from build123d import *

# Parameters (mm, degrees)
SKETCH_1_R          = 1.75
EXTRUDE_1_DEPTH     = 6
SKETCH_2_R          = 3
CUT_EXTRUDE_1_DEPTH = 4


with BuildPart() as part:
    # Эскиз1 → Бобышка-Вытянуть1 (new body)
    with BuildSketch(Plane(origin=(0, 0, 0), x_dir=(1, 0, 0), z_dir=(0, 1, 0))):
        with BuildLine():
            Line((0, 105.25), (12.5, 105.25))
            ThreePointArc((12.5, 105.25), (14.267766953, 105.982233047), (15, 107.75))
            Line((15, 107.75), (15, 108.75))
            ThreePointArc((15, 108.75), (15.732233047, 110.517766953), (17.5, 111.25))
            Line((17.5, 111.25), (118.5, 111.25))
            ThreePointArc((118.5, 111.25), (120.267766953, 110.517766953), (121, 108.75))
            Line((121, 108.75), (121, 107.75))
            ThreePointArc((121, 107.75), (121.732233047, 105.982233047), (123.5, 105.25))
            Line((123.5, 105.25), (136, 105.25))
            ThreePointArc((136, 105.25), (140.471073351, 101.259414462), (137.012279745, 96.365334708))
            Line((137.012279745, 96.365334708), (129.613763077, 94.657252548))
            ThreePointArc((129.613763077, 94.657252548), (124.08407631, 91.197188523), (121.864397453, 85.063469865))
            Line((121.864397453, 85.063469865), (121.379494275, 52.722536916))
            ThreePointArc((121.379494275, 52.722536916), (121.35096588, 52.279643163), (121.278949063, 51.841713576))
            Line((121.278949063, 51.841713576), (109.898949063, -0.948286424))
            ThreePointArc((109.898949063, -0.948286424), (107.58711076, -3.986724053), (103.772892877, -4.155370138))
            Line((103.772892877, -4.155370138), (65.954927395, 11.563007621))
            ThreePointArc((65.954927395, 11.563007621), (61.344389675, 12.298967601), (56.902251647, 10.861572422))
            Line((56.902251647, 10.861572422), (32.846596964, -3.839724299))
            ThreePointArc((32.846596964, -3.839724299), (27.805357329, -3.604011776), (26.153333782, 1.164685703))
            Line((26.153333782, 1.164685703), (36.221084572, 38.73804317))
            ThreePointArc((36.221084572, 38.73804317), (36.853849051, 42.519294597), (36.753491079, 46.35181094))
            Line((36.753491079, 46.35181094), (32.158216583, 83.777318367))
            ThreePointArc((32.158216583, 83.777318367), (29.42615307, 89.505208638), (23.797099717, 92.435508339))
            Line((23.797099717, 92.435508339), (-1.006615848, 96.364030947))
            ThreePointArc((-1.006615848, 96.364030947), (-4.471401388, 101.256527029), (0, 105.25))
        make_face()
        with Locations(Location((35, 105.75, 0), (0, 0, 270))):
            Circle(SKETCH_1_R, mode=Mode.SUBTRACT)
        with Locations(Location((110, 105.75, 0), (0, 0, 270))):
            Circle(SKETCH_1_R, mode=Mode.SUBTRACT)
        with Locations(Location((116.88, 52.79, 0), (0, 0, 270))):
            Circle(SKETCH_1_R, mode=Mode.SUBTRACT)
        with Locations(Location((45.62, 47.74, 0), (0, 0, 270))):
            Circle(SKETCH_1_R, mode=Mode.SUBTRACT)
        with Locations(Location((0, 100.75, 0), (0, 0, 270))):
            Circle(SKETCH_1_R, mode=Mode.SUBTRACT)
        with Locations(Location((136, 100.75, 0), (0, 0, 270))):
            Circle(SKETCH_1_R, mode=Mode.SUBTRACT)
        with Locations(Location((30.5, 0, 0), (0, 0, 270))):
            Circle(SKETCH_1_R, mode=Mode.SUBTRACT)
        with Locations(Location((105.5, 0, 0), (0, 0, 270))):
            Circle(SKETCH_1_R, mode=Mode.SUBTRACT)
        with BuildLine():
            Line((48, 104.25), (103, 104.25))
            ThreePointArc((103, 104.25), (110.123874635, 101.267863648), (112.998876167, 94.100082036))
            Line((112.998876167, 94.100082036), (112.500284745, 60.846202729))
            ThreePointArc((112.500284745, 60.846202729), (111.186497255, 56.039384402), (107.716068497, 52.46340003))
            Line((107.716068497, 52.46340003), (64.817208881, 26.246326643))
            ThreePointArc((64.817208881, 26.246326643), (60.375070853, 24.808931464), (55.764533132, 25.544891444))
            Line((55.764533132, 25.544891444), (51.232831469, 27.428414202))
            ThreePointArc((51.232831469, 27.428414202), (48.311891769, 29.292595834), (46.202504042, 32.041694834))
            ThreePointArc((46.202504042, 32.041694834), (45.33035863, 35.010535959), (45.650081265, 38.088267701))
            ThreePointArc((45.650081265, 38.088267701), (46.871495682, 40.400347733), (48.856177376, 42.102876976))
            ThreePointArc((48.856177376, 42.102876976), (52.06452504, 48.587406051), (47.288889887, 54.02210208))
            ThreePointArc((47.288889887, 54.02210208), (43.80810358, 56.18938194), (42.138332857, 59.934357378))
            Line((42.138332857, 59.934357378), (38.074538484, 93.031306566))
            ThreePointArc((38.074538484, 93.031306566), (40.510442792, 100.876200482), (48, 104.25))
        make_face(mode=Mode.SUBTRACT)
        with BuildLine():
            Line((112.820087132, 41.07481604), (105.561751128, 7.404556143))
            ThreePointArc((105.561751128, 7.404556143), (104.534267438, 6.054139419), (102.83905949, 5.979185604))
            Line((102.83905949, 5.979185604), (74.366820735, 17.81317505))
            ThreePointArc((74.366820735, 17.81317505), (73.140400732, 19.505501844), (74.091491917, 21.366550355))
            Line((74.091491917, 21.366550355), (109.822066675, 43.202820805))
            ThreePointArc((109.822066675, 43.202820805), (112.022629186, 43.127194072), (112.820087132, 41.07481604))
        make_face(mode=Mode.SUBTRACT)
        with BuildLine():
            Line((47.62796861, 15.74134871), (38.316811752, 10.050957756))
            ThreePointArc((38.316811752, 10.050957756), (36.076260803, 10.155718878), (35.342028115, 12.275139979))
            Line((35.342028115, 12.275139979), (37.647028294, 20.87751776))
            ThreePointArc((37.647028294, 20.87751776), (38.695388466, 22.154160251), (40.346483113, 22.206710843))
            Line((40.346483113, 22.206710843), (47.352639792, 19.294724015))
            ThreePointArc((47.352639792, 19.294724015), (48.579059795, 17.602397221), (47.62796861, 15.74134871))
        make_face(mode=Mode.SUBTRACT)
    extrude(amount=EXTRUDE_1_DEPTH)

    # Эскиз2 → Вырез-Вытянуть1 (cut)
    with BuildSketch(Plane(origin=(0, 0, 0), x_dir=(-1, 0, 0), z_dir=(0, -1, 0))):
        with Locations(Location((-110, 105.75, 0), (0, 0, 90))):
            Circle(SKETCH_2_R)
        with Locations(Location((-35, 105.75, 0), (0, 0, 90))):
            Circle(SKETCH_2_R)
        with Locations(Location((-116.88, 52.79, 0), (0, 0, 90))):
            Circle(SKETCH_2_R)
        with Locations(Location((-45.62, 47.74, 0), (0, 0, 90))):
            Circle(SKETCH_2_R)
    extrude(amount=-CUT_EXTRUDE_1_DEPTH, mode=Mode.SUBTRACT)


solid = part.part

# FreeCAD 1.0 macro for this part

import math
import FreeCAD as App
import Part
import Sketcher
from FreeCAD import Vector
Q = App.Units.Quantity

doc = App.newDocument("Part")
params = doc.addObject("Spreadsheet::Sheet", "Params")
for row, (alias, value) in enumerate([
    ("sketch1_radius", "10 mm"),
    ("sketch1_radius2", "20 mm"),
    ("sketch1_radius3", "10 mm"),
    ("sketch1_radius4", "10 mm"),
    ("sketch1_radius5", "2 mm"),
    ("pad1_length", "6 mm"),
    ("sketch2_diameter", "6 mm"),
    ("pocket1_length", "4 mm"),
], start=1):
    params.set(f"A{row}", alias)
    params.set(f"B{row}", "=" + value)
    params.setAlias(f"B{row}", alias)

body = doc.addObject("PartDesign::Body", "Body")

sketch1 = body.newObject("Sketcher::SketchObject", "Sketch")
sketch1.AttachmentSupport = (doc.getObject("XZ_Plane"), [""])
sketch1.MapMode = "FlatFace"
sketch1.addGeometry(Part.LineSegment(Vector(12.5, -105.25, 0), Vector(0, -105.25, 0)), False)
sketch1.addGeometry(Part.ArcOfCircle(Part.Circle(Vector(0, -100.75, 0), Vector(0, 0, 1), 4.5), math.radians(102.925999), math.radians(270)), False)
sketch1.addGeometry(Part.LineSegment(Vector(-1.006616, -96.364031, 0), Vector(23.7971, -92.435508, 0)), False)
sketch1.addGeometry(Part.ArcOfCircle(Part.Circle(Vector(22.232755, -82.558625, 0), Vector(0, 0, 1), 10), math.radians(-81), math.radians(-7)), False)
sketch1.addGeometry(Part.LineSegment(Vector(32.158217, -83.777318, 0), Vector(36.753491, -46.351811, 0)), False)
sketch1.addGeometry(Part.ArcOfCircle(Part.Circle(Vector(16.902568, -43.914424, 0), Vector(0, 0, 1), 20), math.radians(-7), math.radians(15)), False)
sketch1.addGeometry(Part.LineSegment(Vector(36.221085, -38.738043, 0), Vector(26.153334, -1.164686, 0)), False)
sketch1.addGeometry(Part.ArcOfCircle(Part.Circle(Vector(30.5, 0, 0), Vector(0, 0, 1), 4.5), math.radians(58.569361), math.radians(195)), False)
sketch1.addGeometry(Part.LineSegment(Vector(32.846597, 3.839724, 0), Vector(56.902252, -10.861572, 0)), False)
sketch1.addGeometry(Part.ArcOfCircle(Part.Circle(Vector(62.116912, -2.328852, 0), Vector(0, 0, 1), 10), math.radians(-121.430639), math.radians(-67.430639)), False)
sketch1.addGeometry(Part.LineSegment(Vector(65.954927, -11.563008, 0), Vector(103.772893, 4.15537, 0)), False)
sketch1.addGeometry(Part.ArcOfCircle(Part.Circle(Vector(105.5, 0, 0), Vector(0, 0, 1), 4.5), math.radians(12.165154), math.radians(112.569361)), False)
sketch1.addGeometry(Part.LineSegment(Vector(109.898949, 0.948286, 0), Vector(121.278949, -51.841714, 0)), False)
sketch1.addGeometry(Part.ArcOfCircle(Part.Circle(Vector(116.88, -52.79, 0), Vector(0, 0, 1), 4.5), math.radians(0.858999), math.radians(12.165154)), False)
sketch1.addGeometry(Part.LineSegment(Vector(121.379494, -52.722537, 0), Vector(121.864397, -85.06347, 0)), False)
sketch1.addGeometry(Part.ArcOfCircle(Part.Circle(Vector(131.863274, -84.913552, 0), Vector(0, 0, 1), 10), math.radians(-179.141001), math.radians(-103)), False)
sketch1.addGeometry(Part.LineSegment(Vector(129.613763, -94.657253, 0), Vector(137.01228, -96.365335, 0)), False)
sketch1.addGeometry(Part.ArcOfCircle(Part.Circle(Vector(136, -100.75, 0), Vector(0, 0, 1), 4.5), math.radians(-90), math.radians(77)), False)
sketch1.addGeometry(Part.LineSegment(Vector(136, -105.25, 0), Vector(123.5, -105.25, 0)), False)
sketch1.addGeometry(Part.ArcOfCircle(Part.Circle(Vector(123.5, -107.75, 0), Vector(0, 0, 1), 2.5), math.radians(90), math.radians(180)), False)
sketch1.addGeometry(Part.LineSegment(Vector(121, -107.75, 0), Vector(121, -108.75, 0)), False)
sketch1.addGeometry(Part.ArcOfCircle(Part.Circle(Vector(118.5, -108.75, 0), Vector(0, 0, 1), 2.5), math.radians(-90), math.radians(0)), False)
sketch1.addGeometry(Part.LineSegment(Vector(118.5, -111.25, 0), Vector(17.5, -111.25, 0)), False)
sketch1.addGeometry(Part.ArcOfCircle(Part.Circle(Vector(17.5, -108.75, 0), Vector(0, 0, 1), 2.5), math.radians(180), math.radians(270)), False)
sketch1.addGeometry(Part.LineSegment(Vector(15, -108.75, 0), Vector(15, -107.75, 0)), False)
sketch1.addGeometry(Part.ArcOfCircle(Part.Circle(Vector(12.5, -107.75, 0), Vector(0, 0, 1), 2.5), math.radians(0), math.radians(90)), False)
sketch1.addGeometry(Part.Circle(Vector(105.5, 0, 0), Vector(0, 0, 1), 1.75), False)
sketch1.addGeometry(Part.LineSegment(Vector(112.820087, -41.074816, 0), Vector(105.561751, -7.404556, 0)), False)
sketch1.addGeometry(Part.ArcOfCircle(Part.Circle(Vector(103.606663, -7.826017, 0), Vector(0, 0, 1), 2), math.radians(12.165154), math.radians(112.569361)), False)
sketch1.addGeometry(Part.LineSegment(Vector(102.839059, -5.979186, 0), Vector(74.366821, -17.813175, 0)), False)
sketch1.addGeometry(Part.ArcOfCircle(Part.Circle(Vector(75.134424, -19.660006, 0), Vector(0, 0, 1), 2), math.radians(112.569361), math.radians(238.569361)), False)
sketch1.addGeometry(Part.LineSegment(Vector(74.091492, -21.36655, 0), Vector(109.822067, -43.202821, 0)), False)
sketch1.addGeometry(Part.ArcOfCircle(Part.Circle(Vector(110.864999, -41.496277, 0), Vector(0, 0, 1), 2), math.radians(-121.430639), math.radians(12.165154)), False)
sketch1.addGeometry(Part.Circle(Vector(116.88, -52.79, 0), Vector(0, 0, 1), 1.75), False)
sketch1.addGeometry(Part.LineSegment(Vector(47.627969, -15.741349, 0), Vector(38.316812, -10.050958, 0)), False)
sketch1.addGeometry(Part.ArcOfCircle(Part.Circle(Vector(37.27388, -11.757502, 0), Vector(0, 0, 1), 2), math.radians(58.569361), math.radians(195)), False)
sketch1.addGeometry(Part.LineSegment(Vector(35.342028, -12.27514, 0), Vector(37.647028, -20.877518, 0)), False)
sketch1.addGeometry(Part.ArcOfCircle(Part.Circle(Vector(39.57888, -20.35988, 0), Vector(0, 0, 1), 2), math.radians(-165), math.radians(-67.430639)), False)
sketch1.addGeometry(Part.LineSegment(Vector(40.346483, -22.206711, 0), Vector(47.35264, -19.294724, 0)), False)
sketch1.addGeometry(Part.ArcOfCircle(Part.Circle(Vector(46.585037, -17.447893, 0), Vector(0, 0, 1), 2), math.radians(-67.430639), math.radians(58.569361)), False)
sketch1.addGeometry(Part.Circle(Vector(30.5, 0, 0), Vector(0, 0, 1), 1.75), False)
sketch1.addGeometry(Part.Circle(Vector(45.62, -47.74, 0), Vector(0, 0, 1), 1.75), False)
sketch1.addGeometry(Part.LineSegment(Vector(48, -104.25, 0), Vector(103, -104.25, 0)), False)
sketch1.addGeometry(Part.ArcOfCircle(Part.Circle(Vector(103, -94.25, 0), Vector(0, 0, 1), 10), math.radians(-90), math.radians(0.858999)), False)
sketch1.addGeometry(Part.LineSegment(Vector(112.998876, -94.100082, 0), Vector(112.500285, -60.846203, 0)), False)
sketch1.addGeometry(Part.ArcOfCircle(Part.Circle(Vector(102.501409, -60.996121, 0), Vector(0, 0, 1), 10), math.radians(0.858999), math.radians(58.569361)), False)
sketch1.addGeometry(Part.LineSegment(Vector(107.716068, -52.4634, 0), Vector(64.817209, -26.246327, 0)), False)
sketch1.addGeometry(Part.ArcOfCircle(Part.Circle(Vector(59.602549, -34.779047, 0), Vector(0, 0, 1), 10), math.radians(58.569361), math.radians(112.569361)), False)
sketch1.addGeometry(Part.LineSegment(Vector(55.764533, -25.544891, 0), Vector(51.232831, -27.428414, 0)), False)
sketch1.addGeometry(Part.ArcOfCircle(Part.Circle(Vector(55.070847, -36.66257, 0), Vector(0, 0, 1), 10), math.radians(112.569361), math.radians(152.478106)), False)
sketch1.addGeometry(Part.ArcOfCircle(Part.Circle(Vector(53.297179, -35.738395, 0), Vector(0, 0, 1), 8), math.radians(152.478106), math.radians(197.081643)), False)
sketch1.addGeometry(Part.ArcOfCircle(Part.Circle(Vector(52.341291, -36.032129, 0), Vector(0, 0, 1), 7), math.radians(-162.918357), math.radians(-119.859408)), False)
sketch1.addGeometry(Part.ArcOfCircle(Part.Circle(Vector(45.62, -47.74, 0), Vector(0, 0, 1), 6.5), math.radians(-75.122559), math.radians(60.140592)), False)
sketch1.addGeometry(Part.ArcOfCircle(Part.Circle(Vector(49.086156, -60.787443, 0), Vector(0, 0, 1), 7), math.radians(104.877441), math.radians(173)), False)
sketch1.addGeometry(Part.LineSegment(Vector(42.138333, -59.934357, 0), Vector(38.074538, -93.031307, 0)), False)
sketch1.addGeometry(Part.ArcOfCircle(Part.Circle(Vector(48, -94.25, 0), Vector(0, 0, 1), 10), math.radians(173), math.radians(270)), False)
sketch1.addGeometry(Part.Circle(Vector(136, -100.75, 0), Vector(0, 0, 1), 1.75), False)
sketch1.addGeometry(Part.Circle(Vector(110, -105.75, 0), Vector(0, 0, 1), 1.75), False)
sketch1.addGeometry(Part.Circle(Vector(35, -105.75, 0), Vector(0, 0, 1), 1.75), False)
sketch1.addGeometry(Part.Circle(Vector(0, -100.75, 0), Vector(0, 0, 1), 1.75), False)
sketch1.addConstraint(Sketcher.Constraint("Coincident", 0, 2, 1, 2))
sketch1.addConstraint(Sketcher.Constraint("Coincident", 1, 1, 2, 1))
sketch1.addConstraint(Sketcher.Constraint("Coincident", 2, 2, 3, 1))
sketch1.addConstraint(Sketcher.Constraint("Coincident", 3, 2, 4, 1))
sketch1.addConstraint(Sketcher.Constraint("Coincident", 4, 2, 5, 1))
sketch1.addConstraint(Sketcher.Constraint("Coincident", 5, 2, 6, 1))
sketch1.addConstraint(Sketcher.Constraint("Coincident", 6, 2, 7, 2))
sketch1.addConstraint(Sketcher.Constraint("Coincident", 7, 1, 8, 1))
sketch1.addConstraint(Sketcher.Constraint("Coincident", 8, 2, 9, 1))
sketch1.addConstraint(Sketcher.Constraint("Coincident", 9, 2, 10, 1))
sketch1.addConstraint(Sketcher.Constraint("Coincident", 10, 2, 11, 2))
sketch1.addConstraint(Sketcher.Constraint("Coincident", 11, 1, 12, 1))
sketch1.addConstraint(Sketcher.Constraint("Coincident", 12, 2, 13, 2))
sketch1.addConstraint(Sketcher.Constraint("Coincident", 13, 1, 14, 1))
sketch1.addConstraint(Sketcher.Constraint("Coincident", 14, 2, 15, 1))
sketch1.addConstraint(Sketcher.Constraint("Coincident", 15, 2, 16, 1))
sketch1.addConstraint(Sketcher.Constraint("Coincident", 16, 2, 17, 2))
sketch1.addConstraint(Sketcher.Constraint("Coincident", 17, 1, 18, 1))
sketch1.addConstraint(Sketcher.Constraint("Coincident", 18, 2, 19, 1))
sketch1.addConstraint(Sketcher.Constraint("Coincident", 19, 2, 20, 1))
sketch1.addConstraint(Sketcher.Constraint("Coincident", 20, 2, 21, 2))
sketch1.addConstraint(Sketcher.Constraint("Coincident", 21, 1, 22, 1))
sketch1.addConstraint(Sketcher.Constraint("Coincident", 22, 2, 23, 2))
sketch1.addConstraint(Sketcher.Constraint("Coincident", 23, 1, 24, 1))
sketch1.addConstraint(Sketcher.Constraint("Coincident", 24, 2, 25, 1))
sketch1.addConstraint(Sketcher.Constraint("Coincident", 25, 2, 0, 1))
sketch1.addConstraint(Sketcher.Constraint("Coincident", 27, 2, 28, 1))
sketch1.addConstraint(Sketcher.Constraint("Coincident", 28, 2, 29, 1))
sketch1.addConstraint(Sketcher.Constraint("Coincident", 29, 2, 30, 1))
sketch1.addConstraint(Sketcher.Constraint("Coincident", 30, 2, 31, 1))
sketch1.addConstraint(Sketcher.Constraint("Coincident", 31, 2, 32, 1))
sketch1.addConstraint(Sketcher.Constraint("Coincident", 32, 2, 27, 1))
sketch1.addConstraint(Sketcher.Constraint("Coincident", 34, 2, 35, 1))
sketch1.addConstraint(Sketcher.Constraint("Coincident", 35, 2, 36, 1))
sketch1.addConstraint(Sketcher.Constraint("Coincident", 36, 2, 37, 1))
sketch1.addConstraint(Sketcher.Constraint("Coincident", 37, 2, 38, 1))
sketch1.addConstraint(Sketcher.Constraint("Coincident", 38, 2, 39, 1))
sketch1.addConstraint(Sketcher.Constraint("Coincident", 39, 2, 34, 1))
sketch1.addConstraint(Sketcher.Constraint("Coincident", 42, 2, 43, 1))
sketch1.addConstraint(Sketcher.Constraint("Coincident", 43, 2, 44, 1))
sketch1.addConstraint(Sketcher.Constraint("Coincident", 44, 2, 45, 1))
sketch1.addConstraint(Sketcher.Constraint("Coincident", 45, 2, 46, 1))
sketch1.addConstraint(Sketcher.Constraint("Coincident", 46, 2, 47, 1))
sketch1.addConstraint(Sketcher.Constraint("Coincident", 47, 2, 48, 1))
sketch1.addConstraint(Sketcher.Constraint("Coincident", 48, 2, 49, 1))
sketch1.addConstraint(Sketcher.Constraint("Coincident", 49, 2, 50, 1))
sketch1.addConstraint(Sketcher.Constraint("Coincident", 50, 2, 51, 1))
sketch1.addConstraint(Sketcher.Constraint("Coincident", 51, 2, 52, 2))
sketch1.addConstraint(Sketcher.Constraint("Coincident", 52, 1, 53, 1))
sketch1.addConstraint(Sketcher.Constraint("Coincident", 53, 2, 54, 1))
sketch1.addConstraint(Sketcher.Constraint("Coincident", 54, 2, 55, 1))
sketch1.addConstraint(Sketcher.Constraint("Coincident", 55, 2, 42, 1))
sketch1.addConstraint(Sketcher.Constraint("Horizontal", 0))
sketch1.addConstraint(Sketcher.Constraint("Horizontal", 18))
sketch1.addConstraint(Sketcher.Constraint("Vertical", 20))
sketch1.addConstraint(Sketcher.Constraint("Horizontal", 22))
sketch1.addConstraint(Sketcher.Constraint("Vertical", 24))
sketch1.addConstraint(Sketcher.Constraint("Horizontal", 42))
sketch1.addConstraint(Sketcher.Constraint("Coincident", 26, 3, 11, 3))
sketch1.addConstraint(Sketcher.Constraint("Coincident", 33, 3, 13, 3))
sketch1.addConstraint(Sketcher.Constraint("Coincident", 40, 3, 7, 3))
sketch1.addConstraint(Sketcher.Constraint("Coincident", 52, 3, 41, 3))
sketch1.addConstraint(Sketcher.Constraint("Coincident", 56, 3, 17, 3))
sketch1.addConstraint(Sketcher.Constraint("Coincident", 59, 3, 1, 3))
sketch1.addConstraint(Sketcher.Constraint("PointOnObject", 1, 3, -2))
sketch1.addConstraint(Sketcher.Constraint("PointOnObject", 7, 3, -1))
sketch1.addConstraint(Sketcher.Constraint("PointOnObject", 11, 3, -1))
sketch1.addConstraint(Sketcher.Constraint("PointOnObject", 0, 2, -2))
sketch1.addConstraint(Sketcher.Constraint("Radius", 3, Q("10 mm")))
sketch1.addConstraint(Sketcher.Constraint("Radius", 5, Q("20 mm")))
sketch1.addConstraint(Sketcher.Constraint("Radius", 9, Q("10 mm")))
sketch1.addConstraint(Sketcher.Constraint("Radius", 15, Q("10 mm")))
sketch1.addConstraint(Sketcher.Constraint("Radius", 28, Q("2 mm")))
sketch1.addConstraint(Sketcher.Constraint("Radius", 30, Q("2 mm")))
sketch1.addConstraint(Sketcher.Constraint("Radius", 32, Q("2 mm")))
sketch1.addConstraint(Sketcher.Constraint("Radius", 35, Q("2 mm")))
sketch1.addConstraint(Sketcher.Constraint("Radius", 37, Q("2 mm")))
sketch1.addConstraint(Sketcher.Constraint("Radius", 39, Q("2 mm")))
sketch1.addConstraint(Sketcher.Constraint("Radius", 43, Q("10 mm")))
sketch1.addConstraint(Sketcher.Constraint("Radius", 45, Q("10 mm")))
sketch1.addConstraint(Sketcher.Constraint("Radius", 47, Q("10 mm")))
sketch1.addConstraint(Sketcher.Constraint("Radius", 49, Q("10 mm")))
sketch1.addConstraint(Sketcher.Constraint("Radius", 50, Q("8 mm")))
sketch1.addConstraint(Sketcher.Constraint("Radius", 51, Q("7 mm")))
sketch1.addConstraint(Sketcher.Constraint("Radius", 53, Q("7 mm")))
sketch1.addConstraint(Sketcher.Constraint("Radius", 55, Q("10 mm")))
sketch1.addConstraint(Sketcher.Constraint("Diameter", 26, Q("3.5 mm")))
sketch1.addConstraint(Sketcher.Constraint("Diameter", 33, Q("3.5 mm")))
sketch1.addConstraint(Sketcher.Constraint("Diameter", 40, Q("3.5 mm")))
sketch1.addConstraint(Sketcher.Constraint("Diameter", 41, Q("3.5 mm")))
sketch1.addConstraint(Sketcher.Constraint("Diameter", 56, Q("3.5 mm")))
sketch1.addConstraint(Sketcher.Constraint("Diameter", 57, Q("3.5 mm")))
sketch1.addConstraint(Sketcher.Constraint("Diameter", 58, Q("3.5 mm")))
sketch1.addConstraint(Sketcher.Constraint("Diameter", 59, Q("3.5 mm")))
sketch1.addConstraint(Sketcher.Constraint("Radius", 1, Q("4.5 mm")))
sketch1.addConstraint(Sketcher.Constraint("Radius", 7, Q("4.5 mm")))
sketch1.addConstraint(Sketcher.Constraint("Radius", 11, Q("4.5 mm")))
sketch1.addConstraint(Sketcher.Constraint("Radius", 13, Q("4.5 mm")))
sketch1.addConstraint(Sketcher.Constraint("Radius", 17, Q("4.5 mm")))
sketch1.addConstraint(Sketcher.Constraint("Radius", 19, Q("2.5 mm")))
sketch1.addConstraint(Sketcher.Constraint("Radius", 21, Q("2.5 mm")))
sketch1.addConstraint(Sketcher.Constraint("Radius", 23, Q("2.5 mm")))
sketch1.addConstraint(Sketcher.Constraint("Radius", 25, Q("2.5 mm")))
sketch1.addConstraint(Sketcher.Constraint("Radius", 52, Q("6.5 mm")))
sketch1.addConstraint(Sketcher.Constraint("DistanceX", 22, 2, 22, 1, Q("101 mm")))
sketch1.addConstraint(Sketcher.Constraint("DistanceX", 42, 1, 42, 2, Q("55 mm")))
sketch1.addConstraint(Sketcher.Constraint("DistanceY", 20, 2, 20, 1, Q("1 mm")))
sketch1.addConstraint(Sketcher.Constraint("DistanceY", 24, 1, 24, 2, Q("1 mm")))
sketch1.addConstraint(Sketcher.Constraint("DistanceX", 0, 2, 0, 1, Q("12.5 mm")))
sketch1.addConstraint(Sketcher.Constraint("DistanceX", 18, 2, 18, 1, Q("12.5 mm")))
sketch1.addConstraint(Sketcher.Constraint("DistanceX", -1, 1, 17, 3, Q("136 mm")))
sketch1.addConstraint(Sketcher.Constraint("DistanceX", -1, 1, 43, 3, Q("103 mm")))
sketch1.addConstraint(Sketcher.Constraint("DistanceX", -1, 1, 55, 3, Q("48 mm")))
sketch1.addConstraint(Sketcher.Constraint("DistanceX", -1, 1, 57, 3, Q("110 mm")))
sketch1.addConstraint(Sketcher.Constraint("DistanceX", -1, 1, 58, 3, Q("35 mm")))
sketch1.addConstraint(Sketcher.Constraint("DistanceX", -1, 1, 17, 1, Q("136 mm")))
sketch1.addConstraint(Sketcher.Constraint("DistanceX", -1, 1, 19, 2, Q("121 mm")))
sketch1.addConstraint(Sketcher.Constraint("DistanceX", -1, 1, 23, 1, Q("15 mm")))
sketch1.addConstraint(Sketcher.Constraint("DistanceX", -1, 1, 42, 2, Q("103 mm")))
sketch1.addConstraint(Sketcher.Constraint("DistanceX", -1, 1, 7, 3, Q("30.5 mm")))
sketch1.addConstraint(Sketcher.Constraint("DistanceX", -1, 1, 11, 3, Q("105.5 mm")))
sketch1.addConstraint(Sketcher.Constraint("DistanceX", -1, 1, 21, 1, Q("118.5 mm")))
sketch1.addConstraint(Sketcher.Constraint("DistanceY", 1, 3, -1, 1, Q("100.75 mm")))
sketch1.addConstraint(Sketcher.Constraint("DistanceX", -1, 1, 13, 3, Q("116.88 mm")))
sketch1.addConstraint(Sketcher.Constraint("DistanceY", 13, 3, -1, 1, Q("52.79 mm")))
sketch1.addConstraint(Sketcher.Constraint("DistanceY", 17, 3, -1, 1, Q("100.75 mm")))
sketch1.addConstraint(Sketcher.Constraint("DistanceY", 21, 3, -1, 1, Q("108.75 mm")))
sketch1.addConstraint(Sketcher.Constraint("DistanceX", -1, 1, 41, 3, Q("45.62 mm")))
sketch1.addConstraint(Sketcher.Constraint("DistanceY", 41, 3, -1, 1, Q("47.74 mm")))
sketch1.addConstraint(Sketcher.Constraint("DistanceY", 43, 3, -1, 1, Q("94.25 mm")))
sketch1.addConstraint(Sketcher.Constraint("DistanceY", 57, 3, -1, 1, Q("105.75 mm")))
sketch1.addConstraint(Sketcher.Constraint("DistanceY", 58, 3, -1, 1, Q("105.75 mm")))
sketch1.addConstraint(Sketcher.Constraint("DistanceY", 19, 2, -1, 1, Q("107.75 mm")))
sketch1.addConstraint(Sketcher.Constraint("DistanceY", 23, 1, -1, 1, Q("108.75 mm")))
sketch1.addConstraint(Sketcher.Constraint("DistanceX", -1, 1, 32, 3, Q("110.864999 mm")))
sketch1.addConstraint(Sketcher.Constraint("Distance", 54, Q("33.345501 mm")))
sketch1.addConstraint(Sketcher.Constraint("DistanceY", 35, 3, -1, 1, Q("11.757502 mm")))
sketch1.addConstraint(Sketcher.Constraint("DistanceX", -1, 1, 2, 2, Q("23.7971 mm")))
sketch1.addConstraint(Sketcher.Constraint("DistanceY", 45, 2, -1, 1, Q("52.4634 mm")))
sketch1.addConstraint(Sketcher.Constraint("Distance", 12, Q("54.002671 mm")))
sketch1.addConstraint(Sketcher.Constraint("Distance", 16, Q("7.593128 mm")))
sketch1.addConstraint(Sketcher.Constraint("Distance", 27, Q("34.44372 mm")))
sketch1.addConstraint(Sketcher.Constraint("Distance", 38, Q("7.587219 mm")))
sketch1.addConstraint(Sketcher.Constraint("Distance", 46, Q("50.275711 mm")))
sketch1.addConstraint(Sketcher.Constraint("DistanceX", -1, 1, 5, 3, Q("16.902568 mm")))
sketch1.addConstraint(Sketcher.Constraint("DistanceX", -1, 1, 9, 3, Q("62.116912 mm")))
sketch1.addConstraint(Sketcher.Constraint("DistanceY", 9, 3, -1, 1, Q("2.328852 mm")))
sketch1.addConstraint(Sketcher.Constraint("DistanceY", 15, 3, -1, 1, Q("84.913552 mm")))
sketch1.addConstraint(Sketcher.Constraint("DistanceX", -1, 1, 35, 3, Q("37.27388 mm")))
sketch1.addConstraint(Sketcher.Constraint("DistanceX", -1, 1, 37, 3, Q("39.57888 mm")))
sketch1.addConstraint(Sketcher.Constraint("DistanceY", 37, 3, -1, 1, Q("20.35988 mm")))
sketch1.addConstraint(Sketcher.Constraint("DistanceX", -1, 1, 45, 3, Q("102.501409 mm")))
sketch1.addConstraint(Sketcher.Constraint("DistanceY", 45, 3, -1, 1, Q("60.996121 mm")))
sketch1.addConstraint(Sketcher.Constraint("DistanceX", -1, 1, 47, 3, Q("59.602549 mm")))
sketch1.addConstraint(Sketcher.Constraint("DistanceY", 49, 3, -1, 1, Q("36.66257 mm")))
sketch1.addConstraint(Sketcher.Constraint("DistanceX", -1, 1, 50, 3, Q("53.297179 mm")))
sketch1.addConstraint(Sketcher.Constraint("DistanceX", -1, 1, 51, 3, Q("52.341291 mm")))
sketch1.addConstraint(Sketcher.Constraint("DistanceY", 1, 1, -1, 1, Q("96.364031 mm")))
sketch1.addConstraint(Sketcher.Constraint("DistanceY", 2, 2, -1, 1, Q("92.435508 mm")))
sketch1.addConstraint(Sketcher.Constraint("DistanceY", 3, 2, -1, 1, Q("83.777318 mm")))
sketch1.addConstraint(Sketcher.Constraint("DistanceX", -1, 1, 4, 2, Q("36.753491 mm")))
sketch1.addConstraint(Sketcher.Constraint("DistanceY", 4, 2, -1, 1, Q("46.351811 mm")))
sketch1.addConstraint(Sketcher.Constraint("DistanceX", -1, 1, 8, 2, Q("56.902252 mm")))
sketch1.addConstraint(Sketcher.Constraint("DistanceY", -1, 1, 10, 2, Q("4.15537 mm")))
sketch1.addConstraint(Sketcher.Constraint("DistanceX", -1, 1, 11, 1, Q("109.898949 mm")))
sketch1.addConstraint(Sketcher.Constraint("DistanceY", 14, 2, -1, 1, Q("85.06347 mm")))
sketch1.addConstraint(Sketcher.Constraint("DistanceX", -1, 1, 16, 2, Q("137.01228 mm")))
sketch1.addConstraint(Sketcher.Constraint("DistanceX", -1, 1, 27, 2, Q("105.561751 mm")))
sketch1.addConstraint(Sketcher.Constraint("DistanceX", -1, 1, 28, 2, Q("102.839059 mm")))
sketch1.addConstraint(Sketcher.Constraint("DistanceX", -1, 1, 29, 2, Q("74.366821 mm")))
sketch1.addConstraint(Sketcher.Constraint("DistanceX", -1, 1, 30, 2, Q("74.091492 mm")))
sketch1.addConstraint(Sketcher.Constraint("DistanceY", 30, 2, -1, 1, Q("21.36655 mm")))
sketch1.addConstraint(Sketcher.Constraint("DistanceY", 31, 2, -1, 1, Q("43.202821 mm")))
sketch1.addConstraint(Sketcher.Constraint("DistanceX", -1, 1, 34, 2, Q("38.316812 mm")))
sketch1.addConstraint(Sketcher.Constraint("DistanceX", -1, 1, 35, 2, Q("35.342028 mm")))
sketch1.addConstraint(Sketcher.Constraint("DistanceX", -1, 1, 36, 2, Q("37.647028 mm")))
sketch1.addConstraint(Sketcher.Constraint("DistanceY", 37, 2, -1, 1, Q("22.206711 mm")))
sketch1.addConstraint(Sketcher.Constraint("DistanceX", -1, 1, 38, 2, Q("47.35264 mm")))
sketch1.addConstraint(Sketcher.Constraint("DistanceX", -1, 1, 39, 2, Q("47.627969 mm")))
sketch1.addConstraint(Sketcher.Constraint("DistanceY", 39, 2, -1, 1, Q("15.741349 mm")))
sketch1.addConstraint(Sketcher.Constraint("DistanceX", -1, 1, 46, 2, Q("64.817209 mm")))
sketch1.addConstraint(Sketcher.Constraint("DistanceY", 47, 2, -1, 1, Q("25.544891 mm")))
sketch1.addConstraint(Sketcher.Constraint("DistanceX", -1, 1, 48, 2, Q("51.232831 mm")))
sketch1.addConstraint(Sketcher.Constraint("DistanceX", -1, 1, 50, 2, Q("45.650081 mm")))
sketch1.addConstraint(Sketcher.Constraint("DistanceX", -1, 1, 52, 1, Q("47.28889 mm")))
sketch1.addConstraint(Sketcher.Constraint("DistanceX", -1, 1, 54, 2, Q("38.074538 mm")))
sketch1.addConstraint(Sketcher.Constraint("Distance", 4, Q("37.706566 mm")))
sketch1.addConstraint(Sketcher.Constraint("Distance", 6, Q("38.898802 mm")))
sketch1.addConstraint(Sketcher.Constraint("Distance", 8, Q("28.192244 mm")))
sketch1.addConstraint(Sketcher.Constraint("Distance", 10, Q("40.954437 mm")))
sketch1.addConstraint(Sketcher.Constraint("Distance", 14, Q("32.344568 mm")))
sketch1.addConstraint(Sketcher.Constraint("Distance", 29, Q("30.833613 mm")))
sketch1.addConstraint(Sketcher.Constraint("Distance", 31, Q("41.874774 mm")))
sketch1.addConstraint(Sketcher.Constraint("Distance", 44, Q("33.257617 mm")))
sketch1.addConstraint(Sketcher.Constraint("DistanceX", -1, 1, 15, 3, Q("131.863274 mm")))
sketch1.addConstraint(Sketcher.Constraint("DistanceX", -1, 1, 28, 3, Q("103.606663 mm")))
sketch1.addConstraint(Sketcher.Constraint("DistanceY", 28, 3, -1, 1, Q("7.826017 mm")))
sketch1.addConstraint(Sketcher.Constraint("DistanceX", -1, 1, 53, 3, Q("49.086156 mm")))
sketch1.addConstraint(Sketcher.Constraint("DistanceX", -1, 1, 5, 2, Q("36.221085 mm")))
sketch1.addConstraint(Sketcher.Constraint("DistanceX", -1, 1, 43, 2, Q("112.998876 mm")))
sketch1.addConstraint(Sketcher.Constraint("DistanceX", -1, 1, 49, 2, Q("46.202504 mm")))
sketch1.addConstraint(Sketcher.Constraint("DistanceX", -1, 1, 51, 2, Q("48.856177 mm")))
sketch1.setExpression("Constraints[68]", "Params.sketch1_radius")
sketch1.setExpression("Constraints[69]", "Params.sketch1_radius2")
sketch1.setExpression("Constraints[70]", "Params.sketch1_radius3")
sketch1.setExpression("Constraints[71]", "Params.sketch1_radius4")
sketch1.setExpression("Constraints[72]", "Params.sketch1_radius5")
pad1 = body.newObject("PartDesign::Pad", "Pad")
pad1.Profile = sketch1
pad1.setExpression("Length", "Params.pad1_length")
pad1.Reversed = True

sketch2 = body.newObject("Sketcher::SketchObject", "Sketch001")
sketch2.AttachmentSupport = (doc.getObject("XZ_Plane"), [""])
sketch2.MapMode = "FlatFace"
sketch2.addGeometry(Part.Circle(Vector(110, -105.8, 0), Vector(0, 0, 1), 3), False)
sketch2.addGeometry(Part.Circle(Vector(35, -105.8, 0), Vector(0, 0, 1), 3), False)
sketch2.addGeometry(Part.Circle(Vector(116.9, -52.8, 0), Vector(0, 0, 1), 3), False)
sketch2.addGeometry(Part.Circle(Vector(45.6, -47.7, 0), Vector(0, 0, 1), 3), False)
sketch2.addConstraint(Sketcher.Constraint("Equal", 0, 1))
sketch2.addConstraint(Sketcher.Constraint("Equal", 1, 2))
sketch2.addConstraint(Sketcher.Constraint("Equal", 2, 3))
sketch2.addConstraint(Sketcher.Constraint("Horizontal", 0, 3, 1, 3))
sketch2.addConstraint(Sketcher.Constraint("Diameter", 0, Q("6 mm")))
sketch2.addConstraint(Sketcher.Constraint("DistanceX", -1, 1, 0, 3, Q("110 mm")))
sketch2.addConstraint(Sketcher.Constraint("DistanceX", -1, 1, 1, 3, Q("35 mm")))
sketch2.addConstraint(Sketcher.Constraint("DistanceY", 0, 3, -1, 1, Q("105.75 mm")))
sketch2.addConstraint(Sketcher.Constraint("DistanceX", -1, 1, 2, 3, Q("116.88 mm")))
sketch2.addConstraint(Sketcher.Constraint("DistanceY", 2, 3, -1, 1, Q("52.79 mm")))
sketch2.addConstraint(Sketcher.Constraint("DistanceX", -1, 1, 3, 3, Q("45.62 mm")))
sketch2.addConstraint(Sketcher.Constraint("DistanceY", 3, 3, -1, 1, Q("47.74 mm")))
sketch2.setExpression("Constraints[4]", "Params.sketch2_diameter")
pocket1 = body.newObject("PartDesign::Pocket", "Pocket")
pocket1.Profile = sketch2
pocket1.setExpression("Length", "Params.pocket1_length")

doc.recompute()
